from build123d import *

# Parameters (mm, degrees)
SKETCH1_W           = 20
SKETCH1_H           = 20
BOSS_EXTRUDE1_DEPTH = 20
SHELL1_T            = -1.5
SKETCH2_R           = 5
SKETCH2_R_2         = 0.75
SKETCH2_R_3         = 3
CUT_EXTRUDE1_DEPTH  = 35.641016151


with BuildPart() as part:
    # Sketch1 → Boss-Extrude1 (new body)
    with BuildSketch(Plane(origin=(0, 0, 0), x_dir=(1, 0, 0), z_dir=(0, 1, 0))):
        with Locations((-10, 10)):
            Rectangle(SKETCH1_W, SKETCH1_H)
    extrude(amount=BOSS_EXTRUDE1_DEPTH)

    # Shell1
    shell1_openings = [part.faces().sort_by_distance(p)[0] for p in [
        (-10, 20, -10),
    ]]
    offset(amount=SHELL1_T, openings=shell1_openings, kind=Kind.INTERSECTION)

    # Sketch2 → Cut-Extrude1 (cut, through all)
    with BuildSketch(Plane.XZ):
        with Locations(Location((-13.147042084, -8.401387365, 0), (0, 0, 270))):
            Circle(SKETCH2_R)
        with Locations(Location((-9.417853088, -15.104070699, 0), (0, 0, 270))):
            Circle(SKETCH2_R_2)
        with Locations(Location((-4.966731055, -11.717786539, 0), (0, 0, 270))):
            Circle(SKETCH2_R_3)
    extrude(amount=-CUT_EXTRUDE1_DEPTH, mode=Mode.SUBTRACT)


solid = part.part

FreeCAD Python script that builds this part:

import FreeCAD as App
import Part
import Sketcher
from FreeCAD import Vector
Q = App.Units.Quantity


def faces_at(feature, points):
    """Names of the faces that lie closest to the given points."""
    faces = feature.Shape.Faces
    near = lambda p: min(range(len(faces)), key=lambda i: faces[i].distToShape(Part.Vertex(*p))[0])
    return sorted({f"Face{near(p) + 1}" for p in points})

doc = App.newDocument("Part")
body = doc.addObject("PartDesign::Body", "Body")

# Sketch on XZ plane
sketch1 = body.newObject("Sketcher::SketchObject", "Sketch")
sketch1.AttachmentSupport = (doc.getObject("XZ_Plane"), [""])
sketch1.MapMode = "FlatFace"
sketch1.addGeometry([
    Part.LineSegment(Vector(-20, -20, 0), Vector(-20, 0, 0)),
    Part.LineSegment(Vector(-20, 0, 0), Vector(0, 0, 0)),
    Part.LineSegment(Vector(0, 0, 0), Vector(0, -20, 0)),
    Part.LineSegment(Vector(0, -20, 0), Vector(-20, -20, 0)),
], False)
sketch1.addConstraint([
    Sketcher.Constraint("Coincident", 0, 2, 1, 1),
    Sketcher.Constraint("Coincident", 1, 2, 2, 1),
    Sketcher.Constraint("Coincident", 2, 2, 3, 1),
    Sketcher.Constraint("Coincident", 3, 2, 0, 1),
    Sketcher.Constraint("Vertical", 0),
    Sketcher.Constraint("Horizontal", 1),
    Sketcher.Constraint("Vertical", 2),
    Sketcher.Constraint("Horizontal", 3),
    Sketcher.Constraint("Coincident", 1, 2, -1, 1),
    Sketcher.Constraint("Equal", 3, 0),
    Sketcher.Constraint("DistanceX", 1, 1, 1, 2, Q("20 mm")),
])
pad1 = body.newObject("PartDesign::Pad", "Pad")
pad1.Profile = sketch1
pad1.Length = 20
pad1.Reversed = True
doc.recompute()

thickness = body.newObject("PartDesign::Thickness", "Thickness")
thickness.Base = (pad1, faces_at(pad1, [(-10, 20, -10)]))
thickness.Value = 1.5
thickness.Reversed = True
thickness.Join = "Intersection"

# Sketch on XZ plane
sketch2 = body.newObject("Sketcher::SketchObject", "Sketch001")
sketch2.AttachmentSupport = (doc.getObject("XZ_Plane"), [""])
sketch2.MapMode = "FlatFace"
sketch2.addGeometry([
    Part.Circle(Vector(-13.147042, -8.401387, 0), Vector(0, 0, 1), 5),
    Part.Circle(Vector(-9.417853, -15.104071, 0), Vector(0, 0, 1), 0.75),
    Part.Circle(Vector(-4.966731, -11.717787, 0), Vector(0, 0, 1), 3),
], False)
sketch2.addConstraint([
    Sketcher.Constraint("Diameter", 0, Q("10 mm")),
    Sketcher.Constraint("Diameter", 2, Q("6 mm")),
    Sketcher.Constraint("Diameter", 1, Q("1.5 mm")),
    Sketcher.Constraint("DistanceY", 2, 3, 0, 3, Q("3.316399 mm")),
    Sketcher.Constraint("DistanceY", 1, 3, -1, 1, Q("15.104071 mm")),
    Sketcher.Constraint("DistanceX", 2, 3, -1, 1, Q("4.966731 mm")),
    Sketcher.Constraint("DistanceX", 0, 3, 1, 3, Q("3.729189 mm")),
    Sketcher.Constraint("DistanceX", 0, 3, 2, 3, Q("8.180311 mm")),
    Sketcher.Constraint("DistanceY", 0, 3, -1, 1, Q("8.401387 mm")),
])
pocket1 = body.newObject("PartDesign::Pocket", "Pocket")
pocket1.Profile = sketch2
pocket1.Type = "ThroughAll"

doc.recompute()
